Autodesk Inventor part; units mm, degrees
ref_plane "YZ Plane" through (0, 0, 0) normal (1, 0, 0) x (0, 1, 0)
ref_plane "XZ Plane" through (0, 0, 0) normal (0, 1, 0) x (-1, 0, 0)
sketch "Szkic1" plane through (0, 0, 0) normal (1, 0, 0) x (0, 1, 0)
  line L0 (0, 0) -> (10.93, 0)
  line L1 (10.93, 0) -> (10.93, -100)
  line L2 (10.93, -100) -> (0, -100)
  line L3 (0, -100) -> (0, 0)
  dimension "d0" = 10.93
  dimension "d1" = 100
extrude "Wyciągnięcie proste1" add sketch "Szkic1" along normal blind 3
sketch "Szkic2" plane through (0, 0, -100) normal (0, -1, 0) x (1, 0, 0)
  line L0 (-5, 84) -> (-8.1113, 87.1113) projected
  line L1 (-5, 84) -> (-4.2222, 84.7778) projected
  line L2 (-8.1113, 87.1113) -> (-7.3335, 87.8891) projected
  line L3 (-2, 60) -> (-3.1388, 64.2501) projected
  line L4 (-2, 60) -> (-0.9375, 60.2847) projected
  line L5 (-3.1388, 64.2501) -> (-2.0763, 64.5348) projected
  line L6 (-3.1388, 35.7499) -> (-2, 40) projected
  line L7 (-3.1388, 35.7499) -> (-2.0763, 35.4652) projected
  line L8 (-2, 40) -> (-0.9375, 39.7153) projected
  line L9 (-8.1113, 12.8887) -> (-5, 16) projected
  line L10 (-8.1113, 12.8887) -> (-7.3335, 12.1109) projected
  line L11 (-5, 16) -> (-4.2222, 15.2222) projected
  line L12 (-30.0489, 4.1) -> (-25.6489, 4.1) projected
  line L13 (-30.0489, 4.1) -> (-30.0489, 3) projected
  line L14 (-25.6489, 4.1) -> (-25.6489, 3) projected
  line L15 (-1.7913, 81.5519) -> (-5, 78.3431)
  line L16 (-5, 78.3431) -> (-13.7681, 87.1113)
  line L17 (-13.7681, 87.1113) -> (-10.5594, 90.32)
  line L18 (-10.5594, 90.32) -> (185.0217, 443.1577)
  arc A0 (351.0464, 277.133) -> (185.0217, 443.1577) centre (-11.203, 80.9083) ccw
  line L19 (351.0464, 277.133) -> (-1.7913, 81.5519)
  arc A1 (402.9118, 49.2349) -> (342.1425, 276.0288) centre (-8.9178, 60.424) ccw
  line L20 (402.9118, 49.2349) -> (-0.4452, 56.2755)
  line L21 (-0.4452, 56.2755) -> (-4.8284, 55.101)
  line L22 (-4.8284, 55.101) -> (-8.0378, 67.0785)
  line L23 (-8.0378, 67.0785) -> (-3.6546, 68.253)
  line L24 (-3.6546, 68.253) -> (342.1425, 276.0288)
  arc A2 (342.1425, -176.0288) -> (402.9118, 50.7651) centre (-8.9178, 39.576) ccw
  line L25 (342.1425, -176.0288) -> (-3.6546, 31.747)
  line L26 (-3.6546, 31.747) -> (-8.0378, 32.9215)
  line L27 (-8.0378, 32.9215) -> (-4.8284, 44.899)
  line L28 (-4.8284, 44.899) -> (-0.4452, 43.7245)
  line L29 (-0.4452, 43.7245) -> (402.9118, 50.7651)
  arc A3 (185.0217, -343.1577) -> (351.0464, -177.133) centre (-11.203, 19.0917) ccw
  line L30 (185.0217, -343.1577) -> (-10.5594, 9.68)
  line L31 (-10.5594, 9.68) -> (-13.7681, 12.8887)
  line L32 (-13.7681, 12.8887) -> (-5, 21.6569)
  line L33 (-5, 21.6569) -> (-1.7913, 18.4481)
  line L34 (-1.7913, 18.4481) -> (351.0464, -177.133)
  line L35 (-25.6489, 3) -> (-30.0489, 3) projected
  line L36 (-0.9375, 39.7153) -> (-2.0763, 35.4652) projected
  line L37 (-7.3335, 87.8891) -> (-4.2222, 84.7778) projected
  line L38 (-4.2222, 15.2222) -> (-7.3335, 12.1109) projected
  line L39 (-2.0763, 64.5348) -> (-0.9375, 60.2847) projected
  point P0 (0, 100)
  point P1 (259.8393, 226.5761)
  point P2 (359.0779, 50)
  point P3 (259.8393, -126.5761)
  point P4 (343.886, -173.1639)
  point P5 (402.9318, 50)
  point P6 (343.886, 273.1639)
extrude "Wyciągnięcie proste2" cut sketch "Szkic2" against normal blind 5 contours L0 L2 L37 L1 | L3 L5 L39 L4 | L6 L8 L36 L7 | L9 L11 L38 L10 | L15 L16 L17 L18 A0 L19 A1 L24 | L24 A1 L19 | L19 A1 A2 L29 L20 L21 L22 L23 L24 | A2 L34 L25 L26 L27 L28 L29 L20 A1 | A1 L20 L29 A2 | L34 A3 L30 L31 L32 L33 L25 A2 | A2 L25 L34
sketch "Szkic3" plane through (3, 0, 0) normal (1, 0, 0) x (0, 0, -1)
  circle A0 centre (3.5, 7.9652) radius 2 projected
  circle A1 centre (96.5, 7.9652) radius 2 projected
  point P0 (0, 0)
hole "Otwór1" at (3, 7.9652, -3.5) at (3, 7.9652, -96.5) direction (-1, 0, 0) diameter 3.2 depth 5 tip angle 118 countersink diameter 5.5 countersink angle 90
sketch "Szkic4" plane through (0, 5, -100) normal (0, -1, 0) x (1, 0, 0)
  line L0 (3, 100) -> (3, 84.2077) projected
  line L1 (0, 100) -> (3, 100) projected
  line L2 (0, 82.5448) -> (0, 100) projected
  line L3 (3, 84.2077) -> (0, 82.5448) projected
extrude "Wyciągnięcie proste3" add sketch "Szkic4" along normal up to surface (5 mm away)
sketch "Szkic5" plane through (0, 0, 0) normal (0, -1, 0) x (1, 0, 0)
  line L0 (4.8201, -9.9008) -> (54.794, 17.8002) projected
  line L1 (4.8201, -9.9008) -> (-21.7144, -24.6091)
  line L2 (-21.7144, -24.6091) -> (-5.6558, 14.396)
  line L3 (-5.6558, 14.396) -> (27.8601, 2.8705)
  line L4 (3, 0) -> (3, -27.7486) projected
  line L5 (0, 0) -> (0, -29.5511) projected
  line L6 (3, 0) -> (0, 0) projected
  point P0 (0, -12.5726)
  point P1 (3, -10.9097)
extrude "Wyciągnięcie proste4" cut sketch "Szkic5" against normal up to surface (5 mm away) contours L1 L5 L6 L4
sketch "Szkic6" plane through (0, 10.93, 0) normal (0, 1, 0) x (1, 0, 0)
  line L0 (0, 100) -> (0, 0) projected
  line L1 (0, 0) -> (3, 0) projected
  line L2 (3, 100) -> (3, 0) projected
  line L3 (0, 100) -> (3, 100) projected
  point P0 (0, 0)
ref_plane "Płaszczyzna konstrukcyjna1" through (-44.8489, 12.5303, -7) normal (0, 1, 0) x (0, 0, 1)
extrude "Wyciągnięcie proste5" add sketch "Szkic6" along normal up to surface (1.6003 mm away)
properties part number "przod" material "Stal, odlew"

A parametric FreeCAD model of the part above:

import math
import FreeCAD as App
import Part
import Sketcher
from FreeCAD import Vector
Q = App.Units.Quantity

doc = App.newDocument("Part")
body = doc.addObject("PartDesign::Body", "Body")

sketch1 = body.newObject("Sketcher::SketchObject", "Sketch")
sketch1.AttachmentSupport = (doc.getObject("YZ_Plane"), [""])
sketch1.MapMode = "FlatFace"
sketch1.addGeometry(Part.LineSegment(Vector(10.93, 0, 0), Vector(0, 0, 0)), False)
sketch1.addGeometry(Part.LineSegment(Vector(0, 0, 0), Vector(0, -100, 0)), False)
sketch1.addGeometry(Part.LineSegment(Vector(0, -100, 0), Vector(10.93, -100, 0)), False)
sketch1.addGeometry(Part.LineSegment(Vector(10.93, -100, 0), Vector(10.93, 0, 0)), False)
sketch1.addConstraint(Sketcher.Constraint("Coincident", 0, 2, 1, 1))
sketch1.addConstraint(Sketcher.Constraint("Coincident", 1, 2, 2, 1))
sketch1.addConstraint(Sketcher.Constraint("Coincident", 2, 2, 3, 1))
sketch1.addConstraint(Sketcher.Constraint("Coincident", 3, 2, 0, 1))
sketch1.addConstraint(Sketcher.Constraint("Horizontal", 0))
sketch1.addConstraint(Sketcher.Constraint("Vertical", 1))
sketch1.addConstraint(Sketcher.Constraint("Horizontal", 2))
sketch1.addConstraint(Sketcher.Constraint("Vertical", 3))
sketch1.addConstraint(Sketcher.Constraint("Coincident", 0, 2, -1, 1))
sketch1.addConstraint(Sketcher.Constraint("DistanceY", 1, 2, 1, 1, Q("100 mm")))
sketch1.addConstraint(Sketcher.Constraint("DistanceX", 0, 2, 0, 1, Q("10.93 mm")))
pad1 = body.newObject("PartDesign::Pad", "Pad")
pad1.Profile = sketch1
pad1.Length = 3

sketch2 = body.newObject("Sketcher::SketchObject", "Sketch001")
sketch2.AttachmentSupport = (doc.getObject("XZ_Plane"), [""])
sketch2.MapMode = "FlatFace"
sketch2.addGeometry(Part.LineSegment(Vector(-5, -21.6569, 0), Vector(-1.7913, -18.4481, 0)), False)
sketch2.addGeometry(Part.LineSegment(Vector(-1.7913, -18.4481, 0), Vector(259.839824, 126.576377, 0)), False)
sketch2.addGeometry(Part.LineSegment(Vector(259.839824, 126.576377, 0), Vector(-3.6546, -31.747, 0)), False)
sketch2.addGeometry(Part.LineSegment(Vector(-3.6546, -31.747, 0), Vector(-8.0378, -32.9215, 0)), False)
sketch2.addGeometry(Part.LineSegment(Vector(-8.0378, -32.9215, 0), Vector(-4.8284, -44.899, 0)), False)
sketch2.addGeometry(Part.LineSegment(Vector(-4.8284, -44.899, 0), Vector(-0.4452, -43.7245, 0)), False)
sketch2.addGeometry(Part.LineSegment(Vector(-0.4452, -43.7245, 0), Vector(359.07911, -50, 0)), False)
sketch2.addGeometry(Part.LineSegment(Vector(359.07911, -50, 0), Vector(-0.4452, -56.2755, 0)), False)
sketch2.addGeometry(Part.LineSegment(Vector(-0.4452, -56.2755, 0), Vector(-4.8284, -55.101, 0)), False)
sketch2.addGeometry(Part.LineSegment(Vector(-4.8284, -55.101, 0), Vector(-8.0378, -67.0785, 0)), False)
sketch2.addGeometry(Part.LineSegment(Vector(-8.0378, -67.0785, 0), Vector(-3.6546, -68.253, 0)), False)
sketch2.addGeometry(Part.LineSegment(Vector(-3.6546, -68.253, 0), Vector(259.839824, -226.576377, 0)), False)
sketch2.addGeometry(Part.LineSegment(Vector(259.839824, -226.576377, 0), Vector(-1.7913, -81.5519, 0)), False)
sketch2.addGeometry(Part.LineSegment(Vector(-1.7913, -81.5519, 0), Vector(-5, -78.3431, 0)), False)
sketch2.addGeometry(Part.LineSegment(Vector(-5, -78.3431, 0), Vector(-13.7681, -87.1113, 0)), False)
sketch2.addGeometry(Part.LineSegment(Vector(-13.7681, -87.1113, 0), Vector(-10.5594, -90.32, 0)), False)
sketch2.addGeometry(Part.LineSegment(Vector(-10.5594, -90.32, 0), Vector(185.0217, -443.1577, 0)), False)
sketch2.addGeometry(Part.ArcOfCircle(Part.Circle(Vector(-11.203, -80.9083, 0), Vector(0, 0, 1), 411.981505), math.radians(-61.556304), math.radians(-28.443696)), False)
sketch2.addGeometry(Part.LineSegment(Vector(351.0464, -277.133, 0), Vector(343.885964, -273.163906, 0)), False)
sketch2.addGeometry(Part.ArcOfCircle(Part.Circle(Vector(-8.9178, -60.424, 0), Vector(0, 0, 1), 411.981509), math.radians(-31.089886), math.radians(1.449856)), False)
sketch2.addGeometry(Part.ArcOfCircle(Part.Circle(Vector(-8.9178, -39.576, 0), Vector(0, 0, 1), 411.981572), math.radians(-1.449861), math.radians(31.089886)), False)
sketch2.addGeometry(Part.LineSegment(Vector(343.885967, 173.163908, 0), Vector(351.0464, 177.133, 0)), False)
sketch2.addGeometry(Part.ArcOfCircle(Part.Circle(Vector(-11.203, -19.0917, 0), Vector(0, 0, 1), 411.981505), math.radians(28.443696), math.radians(61.556304)), False)
sketch2.addGeometry(Part.LineSegment(Vector(185.0217, 343.1577, 0), Vector(-10.5594, -9.68, 0)), False)
sketch2.addGeometry(Part.LineSegment(Vector(-10.5594, -9.68, 0), Vector(-13.7681, -12.8887, 0)), False)
sketch2.addGeometry(Part.LineSegment(Vector(-13.7681, -12.8887, 0), Vector(-5, -21.6569, 0)), False)
sketch2.addConstraint(Sketcher.Constraint("Coincident", 0, 2, 1, 1))
sketch2.addConstraint(Sketcher.Constraint("Coincident", 1, 2, 2, 1))
sketch2.addConstraint(Sketcher.Constraint("Coincident", 2, 2, 3, 1))
sketch2.addConstraint(Sketcher.Constraint("Coincident", 3, 2, 4, 1))
sketch2.addConstraint(Sketcher.Constraint("Coincident", 4, 2, 5, 1))
sketch2.addConstraint(Sketcher.Constraint("Coincident", 5, 2, 6, 1))
sketch2.addConstraint(Sketcher.Constraint("Coincident", 6, 2, 7, 1))
sketch2.addConstraint(Sketcher.Constraint("Coincident", 7, 2, 8, 1))
sketch2.addConstraint(Sketcher.Constraint("Coincident", 8, 2, 9, 1))
sketch2.addConstraint(Sketcher.Constraint("Coincident", 9, 2, 10, 1))
sketch2.addConstraint(Sketcher.Constraint("Coincident", 10, 2, 11, 1))
sketch2.addConstraint(Sketcher.Constraint("Coincident", 11, 2, 12, 1))
sketch2.addConstraint(Sketcher.Constraint("Coincident", 12, 2, 13, 1))
sketch2.addConstraint(Sketcher.Constraint("Coincident", 13, 2, 14, 1))
sketch2.addConstraint(Sketcher.Constraint("Coincident", 14, 2, 15, 1))
sketch2.addConstraint(Sketcher.Constraint("Coincident", 15, 2, 16, 1))
sketch2.addConstraint(Sketcher.Constraint("Coincident", 16, 2, 17, 1))
sketch2.addConstraint(Sketcher.Constraint("Coincident", 17, 2, 18, 1))
sketch2.addConstraint(Sketcher.Constraint("Coincident", 18, 2, 19, 1))
sketch2.addConstraint(Sketcher.Constraint("Coincident", 19, 2, 20, 1))
sketch2.addConstraint(Sketcher.Constraint("Coincident", 20, 2, 21, 1))
sketch2.addConstraint(Sketcher.Constraint("Coincident", 21, 2, 22, 1))
sketch2.addConstraint(Sketcher.Constraint("Coincident", 22, 2, 23, 1))
sketch2.addConstraint(Sketcher.Constraint("Coincident", 23, 2, 24, 1))
sketch2.addConstraint(Sketcher.Constraint("Coincident", 24, 2, 25, 1))
sketch2.addConstraint(Sketcher.Constraint("Coincident", 25, 2, 0, 1))
sketch2.addConstraint(Sketcher.Constraint("Equal", 17, 19))
sketch2.addConstraint(Sketcher.Constraint("Equal", 19, 20))
sketch2.addConstraint(Sketcher.Constraint("Equal", 20, 22))
sketch2.addConstraint(Sketcher.Constraint("Perpendicular", 3, 4))
sketch2.addConstraint(Sketcher.Constraint("Perpendicular", 4, 5))
sketch2.addConstraint(Sketcher.Constraint("Perpendicular", 8, 9))
sketch2.addConstraint(Sketcher.Constraint("Perpendicular", 9, 10))
sketch2.addConstraint(Sketcher.Constraint("Perpendicular", 0, 13))
sketch2.addConstraint(Sketcher.Constraint("Perpendicular", 13, 14))
sketch2.addConstraint(Sketcher.Constraint("Perpendicular", 14, 15))
sketch2.addConstraint(Sketcher.Constraint("Perpendicular", 1, 16))
sketch2.addConstraint(Sketcher.Constraint("Parallel", 12, 18))
sketch2.addConstraint(Sketcher.Constraint("Perpendicular", 16, 21))
sketch2.addConstraint(Sketcher.Constraint("Perpendicular", 18, 23))
sketch2.addConstraint(Sketcher.Constraint("Perpendicular", 15, 24))
sketch2.addConstraint(Sketcher.Constraint("Perpendicular", 24, 25))
sketch2.addConstraint(Sketcher.Constraint("Horizontal", 6, 2, 19, 2))
sketch2.addConstraint(Sketcher.Constraint("Vertical", 19, 3, 20, 3))
sketch2.addConstraint(Sketcher.Constraint("Vertical", 17, 3, 22, 3))
sketch2.addConstraint(Sketcher.Constraint("Vertical", 5, 2, 7, 2))
sketch2.addConstraint(Sketcher.Constraint("Vertical", 4, 2, 8, 2))
sketch2.addConstraint(Sketcher.Constraint("Vertical", 3, 2, 9, 2))
sketch2.addConstraint(Sketcher.Constraint("Vertical", 2, 2, 10, 2))
sketch2.addConstraint(Sketcher.Constraint("Vertical", 1, 2, 11, 2))
sketch2.addConstraint(Sketcher.Constraint("Vertical", 0, 2, 12, 2))
sketch2.addConstraint(Sketcher.Constraint("Vertical", 18, 2, 20, 2))
sketch2.addConstraint(Sketcher.Constraint("Vertical", 17, 2, 21, 2))
sketch2.addConstraint(Sketcher.Constraint("Vertical", 16, 2, 22, 2))
sketch2.addConstraint(Sketcher.Constraint("Vertical", 15, 2, 23, 2))
sketch2.addConstraint(Sketcher.Constraint("Vertical", 14, 2, 24, 2))
sketch2.addConstraint(Sketcher.Constraint("Vertical", 13, 2, 25, 2))
sketch2.addConstraint(Sketcher.Constraint("Equal", 0, 3))
sketch2.addConstraint(Sketcher.Constraint("Equal", 3, 5))
sketch2.addConstraint(Sketcher.Constraint("Equal", 6, 7))
sketch2.addConstraint(Sketcher.Constraint("Equal", 5, 8))
sketch2.addConstraint(Sketcher.Constraint("Equal", 2, 11))
sketch2.addConstraint(Sketcher.Constraint("Equal", 1, 12))
sketch2.addConstraint(Sketcher.Constraint("Equal", 9, 14))
sketch2.addConstraint(Sketcher.Constraint("Equal", 13, 15))
sketch2.addConstraint(Sketcher.Constraint("Angle", 1, Q("29 deg")))
sketch2.addConstraint(Sketcher.Constraint("Angle", 2, Q("-149 deg")))
sketch2.addConstraint(Sketcher.Constraint("Angle", 3, Q("-164.9997 deg")))
sketch2.addConstraint(Sketcher.Constraint("Angle", 6, Q("-1 deg")))
sketch2.addConstraint(Sketcher.Constraint("DistanceY", 6, 2, -1, 1, Q("50 mm")))
sketch2.addConstraint(Sketcher.Constraint("DistanceX", 13, 2, -1, 1, Q("5 mm")))
sketch2.addConstraint(Sketcher.Constraint("Distance", 4, Q("12.4 mm")))
sketch2.addConstraint(Sketcher.Constraint("Radius", 17, Q("411.9815 mm")))
sketch2.addConstraint(Sketcher.Constraint("DistanceY", 15, 2, -1, 1, Q("90.32 mm")))
sketch2.addConstraint(Sketcher.Constraint("DistanceX", 20, 3, 3, 2, Q("0.88 mm")))
sketch2.addConstraint(Sketcher.Constraint("DistanceY", 13, 2, 10, 2, Q("10.09 mm")))
sketch2.addConstraint(Sketcher.Constraint("Distance", 1, Q("299.137 mm")))
sketch2.addConstraint(Sketcher.Constraint("Distance", 6, Q("359.579 mm")))
sketch2.addConstraint(Sketcher.Constraint("Distance", 18, Q("8.187 mm")))
sketch2.addConstraint(Sketcher.Constraint("DistanceX", 17, 3, -1, 1, Q("11.203 mm")))
sketch2.addConstraint(Sketcher.Constraint("DistanceY", 19, 3, -1, 1, Q("60.424 mm")))
sketch2.addConstraint(Sketcher.Constraint("DistanceX", -1, 1, 18, 2, Q("343.886 mm")))
pocket1 = body.newObject("PartDesign::Pocket", "Pocket")
pocket1.Profile = sketch2
pocket1.Length = 5

sketch3 = body.newObject("Sketcher::SketchObject", "Sketch002")
sketch3.AttachmentSupport = (doc.getObject("YZ_Plane"), [""])
sketch3.MapMode = "FlatFace"
sketch3.AttachmentOffset = App.Placement(Vector(0, 0, 3), App.Rotation())
sketch3.addGeometry(Part.Circle(Vector(7.9652, -3.5, 0), Vector(0, 0, 1), 1.6), False)
sketch3.addGeometry(Part.Circle(Vector(7.9652, -96.5, 0), Vector(0, 0, 1), 1.6), False)
sketch3.addConstraint(Sketcher.Constraint("Equal", 0, 1))
sketch3.addConstraint(Sketcher.Constraint("Vertical", 0, 3, 1, 3))
sketch3.addConstraint(Sketcher.Constraint("Diameter", 0, Q("3.2 mm")))
sketch3.addConstraint(Sketcher.Constraint("DistanceY", 1, 3, 0, 3, Q("93 mm")))
sketch3.addConstraint(Sketcher.Constraint("DistanceY", 0, 3, -1, 1, Q("3.5 mm")))
sketch3.addConstraint(Sketcher.Constraint("DistanceX", -1, 1, 0, 3, Q("7.9652 mm")))
doc.recompute()
hole = body.newObject("PartDesign::Hole", "Hole")
hole.Profile = sketch3
hole.ThreadType = "None"
hole.Diameter = 3.2
hole.DepthType = "Dimension"
hole.Depth = 5
hole.DrillPoint = "Angled"
hole.DrillPointAngle = 118
hole.HoleCutType = "Countersink"
hole.HoleCutDiameter = 5.5
hole.HoleCutCountersinkAngle = 90

sketch4 = body.newObject("Sketcher::SketchObject", "Sketch003")
sketch4.AttachmentSupport = (doc.getObject("XZ_Plane"), [""])
sketch4.MapMode = "FlatFace"
sketch4.AttachmentOffset = App.Placement(Vector(0, 0, -5), App.Rotation())
sketch4.addGeometry(Part.LineSegment(Vector(3, -15.7923, 0), Vector(3, 0, 0)), False)
sketch4.addGeometry(Part.LineSegment(Vector(3, 0, 0), Vector(0, 0, 0)), False)
sketch4.addGeometry(Part.LineSegment(Vector(0, 0, 0), Vector(0, -17.4552, 0)), False)
sketch4.addGeometry(Part.LineSegment(Vector(0, -17.4552, 0), Vector(3, -15.7923, 0)), False)
sketch4.addConstraint(Sketcher.Constraint("Coincident", 0, 2, 1, 1))
sketch4.addConstraint(Sketcher.Constraint("Coincident", 1, 2, 2, 1))
sketch4.addConstraint(Sketcher.Constraint("Coincident", 2, 2, 3, 1))
sketch4.addConstraint(Sketcher.Constraint("Coincident", 3, 2, 0, 1))
sketch4.addConstraint(Sketcher.Constraint("Vertical", 0))
sketch4.addConstraint(Sketcher.Constraint("Horizontal", 1))
sketch4.addConstraint(Sketcher.Constraint("Vertical", 2))
sketch4.addConstraint(Sketcher.Constraint("Coincident", 1, 2, -1, 1))
sketch4.addConstraint(Sketcher.Constraint("DistanceX", 1, 2, 1, 1, Q("3 mm")))
sketch4.addConstraint(Sketcher.Constraint("Angle", 3, Q("28.9996 deg")))
sketch4.addConstraint(Sketcher.Constraint("DistanceY", 0, 1, 0, 2, Q("15.7923 mm")))
pad2 = body.newObject("PartDesign::Pad", "Pad001")
pad2.Profile = sketch4
pad2.Length = 5

sketch5 = body.newObject("Sketcher::SketchObject", "Sketch004")
sketch5.AttachmentSupport = (doc.getObject("XZ_Plane"), [""])
sketch5.MapMode = "FlatFace"
sketch5.addGeometry(Part.LineSegment(Vector(0, -12.572623, 0), Vector(3, -10.909697, 0)), False)
sketch5.addGeometry(Part.LineSegment(Vector(3, -10.909697, 0), Vector(3, 0, 0)), False)
sketch5.addGeometry(Part.LineSegment(Vector(3, 0, 0), Vector(0, 0, 0)), False)
sketch5.addGeometry(Part.LineSegment(Vector(0, 0, 0), Vector(0, -12.572623, 0)), False)
sketch5.addConstraint(Sketcher.Constraint("Coincident", 0, 2, 1, 1))
sketch5.addConstraint(Sketcher.Constraint("Coincident", 1, 2, 2, 1))
sketch5.addConstraint(Sketcher.Constraint("Coincident", 2, 2, 3, 1))
sketch5.addConstraint(Sketcher.Constraint("Coincident", 3, 2, 0, 1))
sketch5.addConstraint(Sketcher.Constraint("Vertical", 1))
sketch5.addConstraint(Sketcher.Constraint("Horizontal", 2))
sketch5.addConstraint(Sketcher.Constraint("Vertical", 3))
sketch5.addConstraint(Sketcher.Constraint("Coincident", 2, 2, -1, 1))
sketch5.addConstraint(Sketcher.Constraint("DistanceX", 2, 2, 2, 1, Q("3 mm")))
sketch5.addConstraint(Sketcher.Constraint("Angle", 0, Q("29 deg")))
sketch5.addConstraint(Sketcher.Constraint("DistanceY", 1, 1, 1, 2, Q("10.9097 mm")))
pocket2 = body.newObject("PartDesign::Pocket", "Pocket001")
pocket2.Profile = sketch5
pocket2.Length = 5

sketch6 = body.newObject("Sketcher::SketchObject", "Sketch005")
sketch6.AttachmentSupport = (doc.getObject("XZ_Plane"), [""])
sketch6.MapMode = "FlatFace"
sketch6.AttachmentOffset = App.Placement(Vector(0, 0, -10.93), App.Rotation())
sketch6.addGeometry(Part.LineSegment(Vector(3, -100, 0), Vector(0, -100, 0)), False)
sketch6.addGeometry(Part.LineSegment(Vector(0, -100, 0), Vector(0, 0, 0)), False)
sketch6.addGeometry(Part.LineSegment(Vector(0, 0, 0), Vector(3, 0, 0)), False)
sketch6.addGeometry(Part.LineSegment(Vector(3, 0, 0), Vector(3, -100, 0)), False)
sketch6.addConstraint(Sketcher.Constraint("Coincident", 0, 2, 1, 1))
sketch6.addConstraint(Sketcher.Constraint("Coincident", 1, 2, 2, 1))
sketch6.addConstraint(Sketcher.Constraint("Coincident", 2, 2, 3, 1))
sketch6.addConstraint(Sketcher.Constraint("Coincident", 3, 2, 0, 1))
sketch6.addConstraint(Sketcher.Constraint("Horizontal", 0))
sketch6.addConstraint(Sketcher.Constraint("Vertical", 1))
sketch6.addConstraint(Sketcher.Constraint("Horizontal", 2))
sketch6.addConstraint(Sketcher.Constraint("Vertical", 3))
sketch6.addConstraint(Sketcher.Constraint("Coincident", 1, 2, -1, 1))
sketch6.addConstraint(Sketcher.Constraint("DistanceX", 0, 2, 0, 1, Q("3 mm")))
sketch6.addConstraint(Sketcher.Constraint("DistanceY", 1, 1, 1, 2, Q("100 mm")))
pad3 = body.newObject("PartDesign::Pad", "Pad002")
pad3.Profile = sketch6
pad3.Length = 1.6003
pad3.Reversed = True

doc.recompute()
